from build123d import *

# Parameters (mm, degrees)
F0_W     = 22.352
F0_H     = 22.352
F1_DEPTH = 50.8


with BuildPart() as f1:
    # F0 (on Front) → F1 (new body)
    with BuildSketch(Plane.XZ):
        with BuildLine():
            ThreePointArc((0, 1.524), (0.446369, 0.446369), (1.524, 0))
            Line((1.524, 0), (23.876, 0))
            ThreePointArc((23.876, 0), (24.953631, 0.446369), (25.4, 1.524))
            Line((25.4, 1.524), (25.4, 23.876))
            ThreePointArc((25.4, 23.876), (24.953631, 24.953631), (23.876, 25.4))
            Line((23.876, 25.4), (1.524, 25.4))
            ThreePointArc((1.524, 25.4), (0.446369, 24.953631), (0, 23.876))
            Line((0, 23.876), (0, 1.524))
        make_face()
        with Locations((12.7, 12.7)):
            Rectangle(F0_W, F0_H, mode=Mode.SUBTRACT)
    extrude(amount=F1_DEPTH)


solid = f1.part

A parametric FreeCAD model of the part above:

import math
import FreeCAD as App
import Part
import Sketcher

V = App.Vector
Q = App.Units.Quantity


def add_polygon(sketch, points):
    """Adds a closed chain of lines whose ends are joined by coincident constraints."""
    first, n = sketch.GeometryCount, len(points)
    for a, b in zip(points, points[1:] + points[:1]):
        sketch.addGeometry(Part.LineSegment(App.Vector(*a, 0), App.Vector(*b, 0)), False)
    for i in range(n):
        sketch.addConstraint(Sketcher.Constraint("Coincident", first + i, 2, first + (i + 1) % n, 1))

doc = App.newDocument("Part")
body = doc.addObject("PartDesign::Body", "Body")

# Sketch on XZ plane
sketch1 = doc.addObject("Sketcher::SketchObject", "Sketch")
body.addObject(sketch1)
sketch1.AttachmentSupport = (doc.XZ_Plane, [""])
sketch1.MapMode = "FlatFace"
sketch1.addGeometry(Part.ArcOfCircle(Part.Circle(V(1.5, 1.5, 0), V(0, 0, 1), 1.5), math.radians(180), math.radians(270)), False)  # 0
sketch1.addGeometry(Part.LineSegment(V(1.5, 0, 0), V(23.9, 0, 0)), False)  # 1
sketch1.addGeometry(Part.ArcOfCircle(Part.Circle(V(23.9, 1.5, 0), V(0, 0, 1), 1.5), math.radians(-90), math.radians(0)), False)  # 2
sketch1.addGeometry(Part.LineSegment(V(25.4, 1.5, 0), V(25.4, 23.9, 0)), False)  # 3
sketch1.addGeometry(Part.ArcOfCircle(Part.Circle(V(23.9, 23.9, 0), V(0, 0, 1), 1.5), math.radians(0), math.radians(90)), False)  # 4
sketch1.addGeometry(Part.LineSegment(V(23.9, 25.4, 0), V(1.5, 25.4, 0)), False)  # 5
sketch1.addGeometry(Part.ArcOfCircle(Part.Circle(V(1.5, 23.9, 0), V(0, 0, 1), 1.5), math.radians(90), math.radians(180)), False)  # 6
sketch1.addGeometry(Part.LineSegment(V(0, 23.9, 0), V(0, 1.5, 0)), False)  # 7
add_polygon(sketch1, [(23.9, 1.5), (1.5, 1.5), (1.5, 23.9), (23.9, 23.9)])  # lines 8-11
sketch1.addConstraint([
    Sketcher.Constraint("Tangent", 0, 2, 1, 1),
    Sketcher.Constraint("Tangent", 1, 2, 2, 1),
    Sketcher.Constraint("Tangent", 2, 2, 3, 1),
    Sketcher.Constraint("Tangent", 3, 2, 4, 1),
    Sketcher.Constraint("Tangent", 4, 2, 5, 1),
    Sketcher.Constraint("Tangent", 5, 2, 6, 1),
    Sketcher.Constraint("Tangent", 6, 2, 7, 1),
    Sketcher.Constraint("Tangent", 7, 2, 0, 1),
    Sketcher.Constraint("Horizontal", 1),
    Sketcher.Constraint("Vertical", 3),
    Sketcher.Constraint("Horizontal", 5),
    Sketcher.Constraint("Vertical", 7),
    Sketcher.Constraint("Horizontal", 8),
    Sketcher.Constraint("Vertical", 9),
    Sketcher.Constraint("Horizontal", 10),
    Sketcher.Constraint("Vertical", 11),
    Sketcher.Constraint("Coincident", 8, 2, 0, 3),
    Sketcher.Constraint("Coincident", 9, 2, 6, 3),
    Sketcher.Constraint("Coincident", 10, 2, 4, 3),
    Sketcher.Constraint("Equal", 0, 2),
    Sketcher.Constraint("PointOnObject", 0, 2, -1),
    Sketcher.Constraint("PointOnObject", 6, 2, -2),
    Sketcher.Constraint("Equal", 10, 3),
    Sketcher.Constraint("Radius", 0, Q("0.06 in")),
    Sketcher.Constraint("DistanceX", -1, 1, 2, 2, Q("1 in")),
])
pad1 = doc.addObject("PartDesign::Pad", "Pad")
body.addObject(pad1)
pad1.Profile = sketch1
pad1.Length = Q("2 in")

doc.recompute()
